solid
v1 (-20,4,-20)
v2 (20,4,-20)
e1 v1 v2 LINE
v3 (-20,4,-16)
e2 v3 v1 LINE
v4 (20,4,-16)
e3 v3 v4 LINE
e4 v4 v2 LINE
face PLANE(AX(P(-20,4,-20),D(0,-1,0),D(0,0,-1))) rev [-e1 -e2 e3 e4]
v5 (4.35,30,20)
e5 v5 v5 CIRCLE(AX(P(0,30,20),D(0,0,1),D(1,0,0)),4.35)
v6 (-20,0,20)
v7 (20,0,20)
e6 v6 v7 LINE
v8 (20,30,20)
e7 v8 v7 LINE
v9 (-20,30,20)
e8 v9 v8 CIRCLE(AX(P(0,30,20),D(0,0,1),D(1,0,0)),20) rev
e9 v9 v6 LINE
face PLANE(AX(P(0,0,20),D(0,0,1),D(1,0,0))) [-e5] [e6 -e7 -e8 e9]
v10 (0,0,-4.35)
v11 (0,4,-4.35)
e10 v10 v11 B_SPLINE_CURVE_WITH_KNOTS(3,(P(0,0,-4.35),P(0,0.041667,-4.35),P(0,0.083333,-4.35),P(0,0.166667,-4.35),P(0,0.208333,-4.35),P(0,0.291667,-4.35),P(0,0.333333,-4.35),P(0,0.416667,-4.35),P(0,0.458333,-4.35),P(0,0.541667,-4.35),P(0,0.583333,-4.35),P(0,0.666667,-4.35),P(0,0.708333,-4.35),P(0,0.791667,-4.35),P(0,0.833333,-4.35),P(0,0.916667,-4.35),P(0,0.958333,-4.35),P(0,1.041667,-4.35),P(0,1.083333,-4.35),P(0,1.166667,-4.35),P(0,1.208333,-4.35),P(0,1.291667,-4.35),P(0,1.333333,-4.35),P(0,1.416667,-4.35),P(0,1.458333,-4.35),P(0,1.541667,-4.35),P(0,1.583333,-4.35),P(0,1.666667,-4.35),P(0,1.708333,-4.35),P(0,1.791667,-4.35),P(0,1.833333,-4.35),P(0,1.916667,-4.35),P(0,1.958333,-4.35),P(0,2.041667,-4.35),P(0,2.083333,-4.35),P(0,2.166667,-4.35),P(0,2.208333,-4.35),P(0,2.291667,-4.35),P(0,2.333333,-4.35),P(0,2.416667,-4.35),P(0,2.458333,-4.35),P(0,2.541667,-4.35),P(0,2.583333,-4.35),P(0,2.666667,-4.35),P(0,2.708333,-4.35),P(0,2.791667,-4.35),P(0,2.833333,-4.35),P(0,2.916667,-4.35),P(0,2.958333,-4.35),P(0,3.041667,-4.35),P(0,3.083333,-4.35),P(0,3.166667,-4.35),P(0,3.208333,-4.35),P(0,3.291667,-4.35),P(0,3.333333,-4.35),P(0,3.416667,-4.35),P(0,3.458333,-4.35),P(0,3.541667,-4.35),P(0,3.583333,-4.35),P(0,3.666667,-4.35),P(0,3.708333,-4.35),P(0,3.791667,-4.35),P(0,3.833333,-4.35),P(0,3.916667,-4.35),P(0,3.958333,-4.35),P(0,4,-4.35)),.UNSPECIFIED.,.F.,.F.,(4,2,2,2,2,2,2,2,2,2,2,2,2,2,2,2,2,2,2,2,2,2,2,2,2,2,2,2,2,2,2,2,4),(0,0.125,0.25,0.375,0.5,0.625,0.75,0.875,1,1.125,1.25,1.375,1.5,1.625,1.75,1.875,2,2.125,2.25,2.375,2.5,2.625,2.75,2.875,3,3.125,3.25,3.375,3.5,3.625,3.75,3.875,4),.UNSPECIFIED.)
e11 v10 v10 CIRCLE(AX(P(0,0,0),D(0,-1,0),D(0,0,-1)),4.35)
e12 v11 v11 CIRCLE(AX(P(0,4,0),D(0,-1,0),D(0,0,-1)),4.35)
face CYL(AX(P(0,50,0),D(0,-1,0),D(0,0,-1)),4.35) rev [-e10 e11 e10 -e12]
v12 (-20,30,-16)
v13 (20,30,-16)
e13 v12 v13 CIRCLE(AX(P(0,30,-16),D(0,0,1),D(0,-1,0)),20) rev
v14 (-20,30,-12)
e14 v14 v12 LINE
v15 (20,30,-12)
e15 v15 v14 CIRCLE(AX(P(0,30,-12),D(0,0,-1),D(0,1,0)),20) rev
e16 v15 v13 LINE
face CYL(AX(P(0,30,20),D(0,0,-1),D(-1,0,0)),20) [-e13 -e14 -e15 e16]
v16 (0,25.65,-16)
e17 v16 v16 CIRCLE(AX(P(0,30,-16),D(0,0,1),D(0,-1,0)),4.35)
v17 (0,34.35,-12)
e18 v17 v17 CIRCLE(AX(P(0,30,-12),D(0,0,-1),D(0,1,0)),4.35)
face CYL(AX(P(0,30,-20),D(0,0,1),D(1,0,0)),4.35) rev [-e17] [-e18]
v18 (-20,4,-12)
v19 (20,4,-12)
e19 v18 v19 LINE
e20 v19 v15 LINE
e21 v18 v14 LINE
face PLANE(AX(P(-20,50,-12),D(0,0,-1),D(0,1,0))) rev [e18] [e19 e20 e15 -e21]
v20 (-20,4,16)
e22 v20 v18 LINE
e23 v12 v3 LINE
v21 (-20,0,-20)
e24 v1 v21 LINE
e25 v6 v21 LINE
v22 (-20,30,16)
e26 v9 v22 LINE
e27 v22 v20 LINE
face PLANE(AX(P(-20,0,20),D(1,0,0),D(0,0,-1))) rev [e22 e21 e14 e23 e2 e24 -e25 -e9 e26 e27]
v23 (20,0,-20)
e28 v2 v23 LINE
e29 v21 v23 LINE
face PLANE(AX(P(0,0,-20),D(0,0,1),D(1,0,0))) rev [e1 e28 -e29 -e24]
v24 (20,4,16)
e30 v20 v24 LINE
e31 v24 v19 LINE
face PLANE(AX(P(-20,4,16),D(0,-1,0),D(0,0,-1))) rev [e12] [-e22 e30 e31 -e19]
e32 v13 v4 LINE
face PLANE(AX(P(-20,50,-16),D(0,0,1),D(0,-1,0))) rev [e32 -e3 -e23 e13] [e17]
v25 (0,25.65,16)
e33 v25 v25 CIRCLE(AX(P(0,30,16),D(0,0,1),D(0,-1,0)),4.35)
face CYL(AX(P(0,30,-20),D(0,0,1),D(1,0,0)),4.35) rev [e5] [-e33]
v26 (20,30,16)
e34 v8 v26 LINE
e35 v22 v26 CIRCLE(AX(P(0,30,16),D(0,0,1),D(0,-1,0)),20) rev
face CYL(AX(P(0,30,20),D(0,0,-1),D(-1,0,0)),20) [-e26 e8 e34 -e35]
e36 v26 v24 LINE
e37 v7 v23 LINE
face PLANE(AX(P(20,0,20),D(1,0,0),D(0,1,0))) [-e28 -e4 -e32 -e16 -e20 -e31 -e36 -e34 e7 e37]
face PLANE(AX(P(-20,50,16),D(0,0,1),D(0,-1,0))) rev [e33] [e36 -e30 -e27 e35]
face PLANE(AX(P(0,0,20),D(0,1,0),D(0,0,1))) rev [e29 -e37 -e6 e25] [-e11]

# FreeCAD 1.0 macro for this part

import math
import FreeCAD as App
import Part
import Sketcher
Q = App.Units.Quantity


def add_polygon(sketch, points):
    """Adds a closed chain of lines whose ends are joined by coincident constraints."""
    first, n = sketch.GeometryCount, len(points)
    for a, b in zip(points, points[1:] + points[:1]):
        sketch.addGeometry(Part.LineSegment(App.Vector(*a, 0), App.Vector(*b, 0)), False)
    for i in range(n):
        sketch.addConstraint(Sketcher.Constraint("Coincident", first + i, 2, first + (i + 1) % n, 1))

doc = App.newDocument("Part")
body = doc.addObject("PartDesign::Body", "Body")

# Sketch on XY plane
sketch1 = doc.addObject("Sketcher::SketchObject", "Sketch")
body.addObject(sketch1)
sketch1.AttachmentSupport = (doc.XY_Plane, [""])
sketch1.MapMode = "FlatFace"
sketch1.addGeometry([
    Part.ArcOfCircle(Part.Circle(App.Vector(0, 30, 0), App.Vector(0, 0, 1), 20), math.radians(0), math.radians(180)),
    Part.LineSegment(App.Vector(-20, 30, 0), App.Vector(-20, 0, 0)),
    Part.LineSegment(App.Vector(-20, 0, 0), App.Vector(20, 0, 0)),
    Part.LineSegment(App.Vector(20, 0, 0), App.Vector(20, 30, 0)),
], False)
sketch1.addConstraint([
    Sketcher.Constraint("Tangent", 0, 2, 1, 1),
    Sketcher.Constraint("Coincident", 1, 2, 2, 1),
    Sketcher.Constraint("Coincident", 2, 2, 3, 1),
    Sketcher.Constraint("Tangent", 3, 2, 0, 1),
    Sketcher.Constraint("Vertical", 1),
    Sketcher.Constraint("Horizontal", 2),
    Sketcher.Constraint("Vertical", 3),
    Sketcher.Constraint("Symmetric", 1, 2, 2, 2, -1, 1),
    Sketcher.Constraint("Radius", 0, Q("20 mm")),
    Sketcher.Constraint("DistanceY", 1, 2, 1, 1, Q("30 mm")),
])
pad1 = doc.addObject("PartDesign::Pad", "Pad")
body.addObject(pad1)
pad1.Profile = sketch1
pad1.Length = 40
pad1.Midplane = True

# Sketch on YZ plane
sketch2 = doc.addObject("Sketcher::SketchObject", "Sketch001")
body.addObject(sketch2)
sketch2.AttachmentSupport = (doc.YZ_Plane, [""])
sketch2.MapMode = "FlatFace"
add_polygon(sketch2, [(50, 16), (4, 16), (4, -12), (50, -12)])  # lines 0-3
add_polygon(sketch2, [(50, -16), (4, -16), (4, -20), (50, -20)])  # lines 4-7
sketch2.addConstraint([
    Sketcher.Constraint("Horizontal", 0),
    Sketcher.Constraint("Vertical", 1),
    Sketcher.Constraint("Horizontal", 2),
    Sketcher.Constraint("Vertical", 3),
    Sketcher.Constraint("Horizontal", 4),
    Sketcher.Constraint("Vertical", 5),
    Sketcher.Constraint("Horizontal", 6),
    Sketcher.Constraint("Vertical", 7),
    Sketcher.Constraint("Symmetric", 0, 2, 4, 2, -1),
    Sketcher.Constraint("Vertical", 3, 2, 6, 2),
    Sketcher.Constraint("DistanceX", 0, 2, 0, 1, Q("46 mm")),
    Sketcher.Constraint("DistanceY", 1, 2, 1, 1, Q("28 mm")),
    Sketcher.Constraint("DistanceY", 5, 2, 5, 1, Q("4 mm")),
    Sketcher.Constraint("DistanceX", -1, 1, 0, 2, Q("4 mm")),
    Sketcher.Constraint("DistanceY", -1, 1, 0, 2, Q("16 mm")),
])
pocket1 = doc.addObject("PartDesign::Pocket", "Pocket")
body.addObject(pocket1)
pocket1.Profile = sketch2
pocket1.Type = "ThroughAll"
pocket1.Midplane = True

# Sketch on XY plane
sketch3 = doc.addObject("Sketcher::SketchObject", "Sketch002")
body.addObject(sketch3)
sketch3.AttachmentSupport = (doc.XY_Plane, [""])
sketch3.MapMode = "FlatFace"
sketch3.AttachmentOffset = App.Placement(App.Vector(0, 0, 20), App.Rotation())
sketch3.addGeometry(Part.Circle(App.Vector(0, 30, 0), App.Vector(0, 0, 1), 4.35), False)
sketch3.addConstraint([
    Sketcher.Constraint("PointOnObject", 0, 3, -2),
    Sketcher.Constraint("Diameter", 0, Q("8.7 mm")),
    Sketcher.Constraint("DistanceY", -1, 1, 0, 3, Q("30 mm")),
])
pocket2 = doc.addObject("PartDesign::Pocket", "Pocket001")
body.addObject(pocket2)
pocket2.Profile = sketch3
pocket2.Type = "ThroughAll"
pocket2.Midplane = True

# Sketch on XZ plane
sketch4 = doc.addObject("Sketcher::SketchObject", "Sketch003")
body.addObject(sketch4)
sketch4.AttachmentSupport = (doc.XZ_Plane, [""])
sketch4.MapMode = "FlatFace"
sketch4.addGeometry(Part.Circle(App.Vector(0, 0, 0), App.Vector(0, 0, 1), 4.35), False)
sketch4.addConstraint([
    Sketcher.Constraint("Coincident", 0, 3, -1, 1),
    Sketcher.Constraint("Diameter", 0, Q("8.7 mm")),
])
pocket3 = doc.addObject("PartDesign::Pocket", "Pocket002")
body.addObject(pocket3)
pocket3.Profile = sketch4
pocket3.Type = "ThroughAll"

doc.recompute()
